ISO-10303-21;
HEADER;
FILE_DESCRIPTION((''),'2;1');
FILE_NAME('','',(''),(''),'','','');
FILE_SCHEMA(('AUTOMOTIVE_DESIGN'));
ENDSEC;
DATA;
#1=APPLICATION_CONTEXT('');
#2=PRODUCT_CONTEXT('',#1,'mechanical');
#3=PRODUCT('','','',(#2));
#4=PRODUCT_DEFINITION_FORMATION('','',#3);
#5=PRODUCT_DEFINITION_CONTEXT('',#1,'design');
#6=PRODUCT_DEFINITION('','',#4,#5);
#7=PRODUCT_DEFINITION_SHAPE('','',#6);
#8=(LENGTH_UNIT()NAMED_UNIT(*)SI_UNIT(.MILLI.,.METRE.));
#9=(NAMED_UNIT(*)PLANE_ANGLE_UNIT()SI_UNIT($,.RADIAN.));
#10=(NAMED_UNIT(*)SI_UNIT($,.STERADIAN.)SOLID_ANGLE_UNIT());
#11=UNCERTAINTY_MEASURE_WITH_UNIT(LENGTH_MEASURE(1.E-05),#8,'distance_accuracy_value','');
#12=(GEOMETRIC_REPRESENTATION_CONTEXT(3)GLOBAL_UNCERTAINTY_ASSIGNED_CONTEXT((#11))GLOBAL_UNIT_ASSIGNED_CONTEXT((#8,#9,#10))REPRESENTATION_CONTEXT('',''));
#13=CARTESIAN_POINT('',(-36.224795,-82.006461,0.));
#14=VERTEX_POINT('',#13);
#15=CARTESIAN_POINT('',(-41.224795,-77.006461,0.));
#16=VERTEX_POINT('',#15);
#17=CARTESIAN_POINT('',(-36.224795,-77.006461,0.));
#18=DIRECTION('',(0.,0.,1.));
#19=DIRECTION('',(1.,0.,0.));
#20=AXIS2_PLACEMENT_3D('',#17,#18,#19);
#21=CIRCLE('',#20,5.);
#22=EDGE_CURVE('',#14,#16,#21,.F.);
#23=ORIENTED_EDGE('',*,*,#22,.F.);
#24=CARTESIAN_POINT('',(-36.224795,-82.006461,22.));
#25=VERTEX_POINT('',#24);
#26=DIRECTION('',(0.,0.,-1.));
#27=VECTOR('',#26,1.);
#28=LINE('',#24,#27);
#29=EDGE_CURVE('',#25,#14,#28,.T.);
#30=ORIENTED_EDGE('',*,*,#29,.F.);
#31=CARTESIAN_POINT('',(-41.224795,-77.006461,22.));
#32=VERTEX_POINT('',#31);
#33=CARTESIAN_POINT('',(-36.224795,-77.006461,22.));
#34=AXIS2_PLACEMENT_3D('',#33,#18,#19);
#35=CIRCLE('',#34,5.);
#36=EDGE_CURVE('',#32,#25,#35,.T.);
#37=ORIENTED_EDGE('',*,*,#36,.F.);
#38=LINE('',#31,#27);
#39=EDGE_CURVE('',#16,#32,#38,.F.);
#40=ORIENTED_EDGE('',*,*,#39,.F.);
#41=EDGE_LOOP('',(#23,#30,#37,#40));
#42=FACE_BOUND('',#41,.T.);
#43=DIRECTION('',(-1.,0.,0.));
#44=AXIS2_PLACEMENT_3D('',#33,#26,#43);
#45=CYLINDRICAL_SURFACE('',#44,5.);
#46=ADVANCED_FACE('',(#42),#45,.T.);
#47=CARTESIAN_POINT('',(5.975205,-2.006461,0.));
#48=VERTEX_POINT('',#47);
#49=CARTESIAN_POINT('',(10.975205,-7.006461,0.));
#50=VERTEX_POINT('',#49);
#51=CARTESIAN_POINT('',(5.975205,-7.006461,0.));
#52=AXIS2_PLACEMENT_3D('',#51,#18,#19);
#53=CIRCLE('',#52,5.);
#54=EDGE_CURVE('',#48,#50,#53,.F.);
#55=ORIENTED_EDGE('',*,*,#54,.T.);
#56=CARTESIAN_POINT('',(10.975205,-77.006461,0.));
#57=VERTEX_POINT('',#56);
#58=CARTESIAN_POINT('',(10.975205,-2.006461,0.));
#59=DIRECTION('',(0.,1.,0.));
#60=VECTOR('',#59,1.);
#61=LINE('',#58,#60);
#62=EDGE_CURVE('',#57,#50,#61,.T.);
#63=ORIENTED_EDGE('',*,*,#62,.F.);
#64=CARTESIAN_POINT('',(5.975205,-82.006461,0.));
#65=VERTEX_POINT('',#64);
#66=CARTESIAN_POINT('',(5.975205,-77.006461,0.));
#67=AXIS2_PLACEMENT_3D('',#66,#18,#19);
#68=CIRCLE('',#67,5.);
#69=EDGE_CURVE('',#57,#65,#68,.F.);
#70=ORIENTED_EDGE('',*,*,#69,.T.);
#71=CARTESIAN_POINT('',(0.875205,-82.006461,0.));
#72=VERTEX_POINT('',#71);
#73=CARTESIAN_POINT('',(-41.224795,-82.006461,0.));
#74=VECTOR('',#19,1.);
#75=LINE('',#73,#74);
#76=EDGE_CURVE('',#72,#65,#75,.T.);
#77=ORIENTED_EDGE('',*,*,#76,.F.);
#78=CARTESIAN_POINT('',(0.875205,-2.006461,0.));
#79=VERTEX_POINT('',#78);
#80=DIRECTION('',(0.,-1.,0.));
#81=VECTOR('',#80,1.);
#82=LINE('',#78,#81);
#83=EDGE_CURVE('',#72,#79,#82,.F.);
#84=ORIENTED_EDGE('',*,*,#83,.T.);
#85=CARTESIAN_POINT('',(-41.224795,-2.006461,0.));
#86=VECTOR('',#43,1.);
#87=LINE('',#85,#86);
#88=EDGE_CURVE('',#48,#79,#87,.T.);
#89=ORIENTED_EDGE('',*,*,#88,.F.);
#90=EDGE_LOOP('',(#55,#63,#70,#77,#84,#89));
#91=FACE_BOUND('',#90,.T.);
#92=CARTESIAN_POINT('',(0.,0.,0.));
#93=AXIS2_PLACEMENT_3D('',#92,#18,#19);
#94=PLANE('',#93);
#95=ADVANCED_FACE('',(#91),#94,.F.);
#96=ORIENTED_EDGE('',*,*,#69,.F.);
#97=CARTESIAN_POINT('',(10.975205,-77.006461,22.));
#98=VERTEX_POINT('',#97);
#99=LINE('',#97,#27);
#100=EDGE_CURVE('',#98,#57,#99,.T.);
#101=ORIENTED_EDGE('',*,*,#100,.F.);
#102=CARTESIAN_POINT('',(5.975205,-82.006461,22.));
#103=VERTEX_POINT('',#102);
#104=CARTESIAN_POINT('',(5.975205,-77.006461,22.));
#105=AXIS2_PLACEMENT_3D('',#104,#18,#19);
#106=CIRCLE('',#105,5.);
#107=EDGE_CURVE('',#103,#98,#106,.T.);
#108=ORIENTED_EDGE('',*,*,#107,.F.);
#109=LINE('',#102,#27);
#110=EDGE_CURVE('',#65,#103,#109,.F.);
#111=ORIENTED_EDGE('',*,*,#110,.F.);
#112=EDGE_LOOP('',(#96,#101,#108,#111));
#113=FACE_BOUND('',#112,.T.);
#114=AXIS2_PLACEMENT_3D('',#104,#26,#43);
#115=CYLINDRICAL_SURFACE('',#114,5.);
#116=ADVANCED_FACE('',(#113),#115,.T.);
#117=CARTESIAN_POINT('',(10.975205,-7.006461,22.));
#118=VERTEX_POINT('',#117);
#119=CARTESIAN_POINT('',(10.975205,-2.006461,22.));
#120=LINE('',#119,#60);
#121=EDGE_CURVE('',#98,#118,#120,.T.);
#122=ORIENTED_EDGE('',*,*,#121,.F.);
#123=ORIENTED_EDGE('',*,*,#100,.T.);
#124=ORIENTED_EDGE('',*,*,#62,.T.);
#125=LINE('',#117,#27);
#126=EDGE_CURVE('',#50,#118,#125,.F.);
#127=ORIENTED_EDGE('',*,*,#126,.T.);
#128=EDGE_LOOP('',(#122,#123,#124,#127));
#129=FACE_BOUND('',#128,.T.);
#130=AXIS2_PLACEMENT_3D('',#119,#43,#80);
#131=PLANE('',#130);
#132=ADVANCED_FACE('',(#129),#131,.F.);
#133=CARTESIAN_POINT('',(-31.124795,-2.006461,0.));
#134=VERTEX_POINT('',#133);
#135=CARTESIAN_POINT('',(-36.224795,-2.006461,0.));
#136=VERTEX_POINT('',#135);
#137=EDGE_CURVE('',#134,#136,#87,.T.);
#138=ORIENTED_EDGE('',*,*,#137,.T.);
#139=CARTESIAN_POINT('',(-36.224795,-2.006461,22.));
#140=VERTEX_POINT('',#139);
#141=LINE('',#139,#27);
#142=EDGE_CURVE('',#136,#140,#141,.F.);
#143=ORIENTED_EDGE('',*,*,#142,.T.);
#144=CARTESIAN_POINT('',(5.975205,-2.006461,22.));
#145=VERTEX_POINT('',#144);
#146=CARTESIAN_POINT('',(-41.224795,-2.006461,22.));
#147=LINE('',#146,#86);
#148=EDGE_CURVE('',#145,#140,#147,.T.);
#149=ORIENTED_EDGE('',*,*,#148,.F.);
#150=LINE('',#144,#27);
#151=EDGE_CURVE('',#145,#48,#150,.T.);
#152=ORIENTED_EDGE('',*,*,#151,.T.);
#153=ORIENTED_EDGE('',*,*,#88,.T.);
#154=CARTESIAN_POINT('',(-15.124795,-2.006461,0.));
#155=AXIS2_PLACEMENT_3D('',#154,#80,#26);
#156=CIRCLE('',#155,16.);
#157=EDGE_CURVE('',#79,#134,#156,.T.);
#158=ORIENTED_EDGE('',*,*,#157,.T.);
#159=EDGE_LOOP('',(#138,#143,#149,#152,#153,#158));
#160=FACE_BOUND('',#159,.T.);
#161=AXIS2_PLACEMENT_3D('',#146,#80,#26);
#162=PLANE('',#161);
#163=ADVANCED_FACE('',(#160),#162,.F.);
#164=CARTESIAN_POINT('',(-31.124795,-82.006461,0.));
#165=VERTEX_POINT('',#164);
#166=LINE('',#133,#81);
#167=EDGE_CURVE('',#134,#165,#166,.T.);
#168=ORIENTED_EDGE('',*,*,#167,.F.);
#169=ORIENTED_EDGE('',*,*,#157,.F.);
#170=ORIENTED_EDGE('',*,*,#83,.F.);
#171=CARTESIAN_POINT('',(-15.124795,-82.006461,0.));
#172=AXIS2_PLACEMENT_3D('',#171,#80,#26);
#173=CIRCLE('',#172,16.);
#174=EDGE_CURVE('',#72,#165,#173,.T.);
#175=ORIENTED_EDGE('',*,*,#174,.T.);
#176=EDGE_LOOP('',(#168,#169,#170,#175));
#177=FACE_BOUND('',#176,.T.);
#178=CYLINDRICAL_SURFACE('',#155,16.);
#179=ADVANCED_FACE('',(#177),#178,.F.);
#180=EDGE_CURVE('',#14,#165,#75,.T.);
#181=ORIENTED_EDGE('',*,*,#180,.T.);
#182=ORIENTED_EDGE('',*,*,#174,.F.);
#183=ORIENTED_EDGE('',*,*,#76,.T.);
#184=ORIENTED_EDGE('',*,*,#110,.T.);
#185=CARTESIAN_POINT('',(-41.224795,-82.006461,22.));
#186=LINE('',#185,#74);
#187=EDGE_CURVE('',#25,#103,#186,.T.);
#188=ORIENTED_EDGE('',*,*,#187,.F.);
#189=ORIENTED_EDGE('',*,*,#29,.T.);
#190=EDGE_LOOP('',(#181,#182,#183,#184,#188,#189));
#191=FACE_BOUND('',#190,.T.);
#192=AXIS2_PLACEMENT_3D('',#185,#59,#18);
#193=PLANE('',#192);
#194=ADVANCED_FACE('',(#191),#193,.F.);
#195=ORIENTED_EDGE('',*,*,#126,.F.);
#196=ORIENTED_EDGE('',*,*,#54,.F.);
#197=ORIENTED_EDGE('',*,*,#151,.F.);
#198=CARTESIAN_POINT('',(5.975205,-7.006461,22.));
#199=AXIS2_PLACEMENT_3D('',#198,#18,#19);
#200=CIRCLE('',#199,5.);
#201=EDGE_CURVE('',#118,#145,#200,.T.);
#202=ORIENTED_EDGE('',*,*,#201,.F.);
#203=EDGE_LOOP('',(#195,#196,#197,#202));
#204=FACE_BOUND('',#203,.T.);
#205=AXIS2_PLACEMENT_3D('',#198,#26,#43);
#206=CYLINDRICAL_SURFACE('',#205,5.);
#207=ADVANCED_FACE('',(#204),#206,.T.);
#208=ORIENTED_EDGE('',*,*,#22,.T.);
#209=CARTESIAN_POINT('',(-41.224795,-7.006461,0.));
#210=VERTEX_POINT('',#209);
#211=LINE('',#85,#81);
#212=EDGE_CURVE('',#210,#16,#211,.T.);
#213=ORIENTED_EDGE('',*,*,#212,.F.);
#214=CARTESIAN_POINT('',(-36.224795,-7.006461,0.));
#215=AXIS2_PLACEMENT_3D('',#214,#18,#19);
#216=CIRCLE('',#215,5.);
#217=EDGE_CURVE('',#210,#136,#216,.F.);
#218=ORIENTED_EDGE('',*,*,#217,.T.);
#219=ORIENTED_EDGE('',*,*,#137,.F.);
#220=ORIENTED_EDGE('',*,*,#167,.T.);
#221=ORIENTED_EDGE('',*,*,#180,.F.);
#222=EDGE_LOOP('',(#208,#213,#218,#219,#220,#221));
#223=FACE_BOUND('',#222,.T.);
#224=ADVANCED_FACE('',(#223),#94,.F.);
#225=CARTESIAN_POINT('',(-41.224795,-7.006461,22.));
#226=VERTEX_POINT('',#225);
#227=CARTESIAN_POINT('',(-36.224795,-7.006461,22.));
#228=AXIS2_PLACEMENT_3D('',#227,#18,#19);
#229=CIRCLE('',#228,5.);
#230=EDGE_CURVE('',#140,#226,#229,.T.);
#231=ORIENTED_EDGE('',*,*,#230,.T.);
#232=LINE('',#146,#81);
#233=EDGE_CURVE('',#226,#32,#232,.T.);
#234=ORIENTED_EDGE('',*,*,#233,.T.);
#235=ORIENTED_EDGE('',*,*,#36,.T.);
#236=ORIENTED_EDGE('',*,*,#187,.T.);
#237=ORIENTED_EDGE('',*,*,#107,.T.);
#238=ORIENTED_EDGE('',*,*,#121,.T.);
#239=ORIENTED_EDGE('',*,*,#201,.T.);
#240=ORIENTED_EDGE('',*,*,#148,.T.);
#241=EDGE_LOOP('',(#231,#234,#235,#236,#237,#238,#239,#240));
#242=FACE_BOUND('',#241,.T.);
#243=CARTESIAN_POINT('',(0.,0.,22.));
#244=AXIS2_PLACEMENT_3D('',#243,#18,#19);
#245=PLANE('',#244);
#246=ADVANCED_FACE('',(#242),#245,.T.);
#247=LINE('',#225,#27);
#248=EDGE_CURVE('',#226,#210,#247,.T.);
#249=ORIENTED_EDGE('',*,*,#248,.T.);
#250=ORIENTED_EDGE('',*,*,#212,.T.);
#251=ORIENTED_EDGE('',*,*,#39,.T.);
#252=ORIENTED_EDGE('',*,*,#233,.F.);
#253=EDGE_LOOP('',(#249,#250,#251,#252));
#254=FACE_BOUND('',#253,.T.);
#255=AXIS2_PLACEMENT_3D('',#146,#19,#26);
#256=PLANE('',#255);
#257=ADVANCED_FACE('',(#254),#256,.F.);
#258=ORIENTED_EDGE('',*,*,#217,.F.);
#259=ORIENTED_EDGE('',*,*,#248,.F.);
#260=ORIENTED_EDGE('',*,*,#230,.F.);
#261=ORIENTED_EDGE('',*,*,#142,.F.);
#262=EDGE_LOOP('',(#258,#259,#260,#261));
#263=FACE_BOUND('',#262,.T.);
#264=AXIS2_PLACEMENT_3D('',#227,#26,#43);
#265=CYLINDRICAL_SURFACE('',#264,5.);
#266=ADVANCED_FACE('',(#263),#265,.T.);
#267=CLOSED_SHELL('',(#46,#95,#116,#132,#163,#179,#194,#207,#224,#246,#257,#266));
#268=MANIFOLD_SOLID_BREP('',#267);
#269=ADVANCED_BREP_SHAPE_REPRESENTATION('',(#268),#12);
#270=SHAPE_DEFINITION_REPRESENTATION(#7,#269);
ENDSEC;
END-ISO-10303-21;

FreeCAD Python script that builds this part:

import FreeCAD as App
import Part
import Sketcher
Q = App.Units.Quantity


def edges_at(feature, points):
    """Names of the edges that pass closest to the given points."""
    edges = feature.Shape.Edges
    near = lambda p: min(range(len(edges)), key=lambda i: edges[i].distToShape(Part.Vertex(*p))[0])
    return sorted({f"Edge{near(p) + 1}" for p in points})

doc = App.newDocument("Part")
body = doc.addObject("PartDesign::Body", "Body")

sketch1 = body.newObject("Sketcher::SketchObject", "Sketch")
sketch1.AttachmentSupport = (doc.getObject("XY_Plane"), [""])
sketch1.MapMode = "FlatFace"
sketch1.addGeometry(Part.LineSegment(App.Vector(-41.224795, -2.006461, 0), App.Vector(-41.224795, -82.006461, 0)), False)
sketch1.addGeometry(Part.LineSegment(App.Vector(-41.224795, -82.006461, 0), App.Vector(10.975205, -82.006461, 0)), False)
sketch1.addGeometry(Part.LineSegment(App.Vector(10.975205, -82.006461, 0), App.Vector(10.975205, -2.006461, 0)), False)
sketch1.addGeometry(Part.LineSegment(App.Vector(10.975205, -2.006461, 0), App.Vector(-41.224795, -2.006461, 0)), False)
sketch1.addConstraint(Sketcher.Constraint("Coincident", 0, 2, 1, 1))
sketch1.addConstraint(Sketcher.Constraint("Coincident", 1, 2, 2, 1))
sketch1.addConstraint(Sketcher.Constraint("Coincident", 2, 2, 3, 1))
sketch1.addConstraint(Sketcher.Constraint("Coincident", 3, 2, 0, 1))
sketch1.addConstraint(Sketcher.Constraint("Vertical", 0))
sketch1.addConstraint(Sketcher.Constraint("Horizontal", 1))
sketch1.addConstraint(Sketcher.Constraint("Vertical", 2))
sketch1.addConstraint(Sketcher.Constraint("Horizontal", 3))
sketch1.addConstraint(Sketcher.Constraint("DistanceY", 0, 2, 0, 1, Q("80 mm")))
sketch1.addConstraint(Sketcher.Constraint("DistanceX", 1, 1, 1, 2, Q("52.2 mm")))
sketch1.addConstraint(Sketcher.Constraint("DistanceY", 0, 2, -1, 1, Q("82.006461 mm")))
sketch1.addConstraint(Sketcher.Constraint("DistanceX", 0, 2, -1, 1, Q("41.224795 mm")))
pad1 = body.newObject("PartDesign::Pad", "Pad")
pad1.Profile = sketch1
pad1.Length = 22
doc.recompute()

fillet = body.newObject("PartDesign::Fillet", "Fillet")
fillet.Base = (pad1, edges_at(pad1, [
    (-41.225, -2.006, 11),
    (10.975, -2.006, 11),
    (10.975, -82.006, 11),
    (-41.225, -82.006, 11),
]))
fillet.Radius = 5

sketch2 = body.newObject("Sketcher::SketchObject", "Sketch001")
sketch2.AttachmentSupport = (doc.getObject("XZ_Plane"), [""])
sketch2.MapMode = "FlatFace"
sketch2.AttachmentOffset = App.Placement(App.Vector(0, 0, 82.006461), App.Rotation())
sketch2.addGeometry(Part.Circle(App.Vector(-15.124795, 0, 0), App.Vector(0, 0, 1), 16), False)
sketch2.addConstraint(Sketcher.Constraint("PointOnObject", 0, 3, -1))
sketch2.addConstraint(Sketcher.Constraint("Diameter", 0, Q("32 mm")))
sketch2.addConstraint(Sketcher.Constraint("DistanceX", 0, 3, -1, 1, Q("15.124795 mm")))
pocket1 = body.newObject("PartDesign::Pocket", "Pocket")
pocket1.Profile = sketch2
pocket1.Type = "ThroughAll"

doc.recompute()
